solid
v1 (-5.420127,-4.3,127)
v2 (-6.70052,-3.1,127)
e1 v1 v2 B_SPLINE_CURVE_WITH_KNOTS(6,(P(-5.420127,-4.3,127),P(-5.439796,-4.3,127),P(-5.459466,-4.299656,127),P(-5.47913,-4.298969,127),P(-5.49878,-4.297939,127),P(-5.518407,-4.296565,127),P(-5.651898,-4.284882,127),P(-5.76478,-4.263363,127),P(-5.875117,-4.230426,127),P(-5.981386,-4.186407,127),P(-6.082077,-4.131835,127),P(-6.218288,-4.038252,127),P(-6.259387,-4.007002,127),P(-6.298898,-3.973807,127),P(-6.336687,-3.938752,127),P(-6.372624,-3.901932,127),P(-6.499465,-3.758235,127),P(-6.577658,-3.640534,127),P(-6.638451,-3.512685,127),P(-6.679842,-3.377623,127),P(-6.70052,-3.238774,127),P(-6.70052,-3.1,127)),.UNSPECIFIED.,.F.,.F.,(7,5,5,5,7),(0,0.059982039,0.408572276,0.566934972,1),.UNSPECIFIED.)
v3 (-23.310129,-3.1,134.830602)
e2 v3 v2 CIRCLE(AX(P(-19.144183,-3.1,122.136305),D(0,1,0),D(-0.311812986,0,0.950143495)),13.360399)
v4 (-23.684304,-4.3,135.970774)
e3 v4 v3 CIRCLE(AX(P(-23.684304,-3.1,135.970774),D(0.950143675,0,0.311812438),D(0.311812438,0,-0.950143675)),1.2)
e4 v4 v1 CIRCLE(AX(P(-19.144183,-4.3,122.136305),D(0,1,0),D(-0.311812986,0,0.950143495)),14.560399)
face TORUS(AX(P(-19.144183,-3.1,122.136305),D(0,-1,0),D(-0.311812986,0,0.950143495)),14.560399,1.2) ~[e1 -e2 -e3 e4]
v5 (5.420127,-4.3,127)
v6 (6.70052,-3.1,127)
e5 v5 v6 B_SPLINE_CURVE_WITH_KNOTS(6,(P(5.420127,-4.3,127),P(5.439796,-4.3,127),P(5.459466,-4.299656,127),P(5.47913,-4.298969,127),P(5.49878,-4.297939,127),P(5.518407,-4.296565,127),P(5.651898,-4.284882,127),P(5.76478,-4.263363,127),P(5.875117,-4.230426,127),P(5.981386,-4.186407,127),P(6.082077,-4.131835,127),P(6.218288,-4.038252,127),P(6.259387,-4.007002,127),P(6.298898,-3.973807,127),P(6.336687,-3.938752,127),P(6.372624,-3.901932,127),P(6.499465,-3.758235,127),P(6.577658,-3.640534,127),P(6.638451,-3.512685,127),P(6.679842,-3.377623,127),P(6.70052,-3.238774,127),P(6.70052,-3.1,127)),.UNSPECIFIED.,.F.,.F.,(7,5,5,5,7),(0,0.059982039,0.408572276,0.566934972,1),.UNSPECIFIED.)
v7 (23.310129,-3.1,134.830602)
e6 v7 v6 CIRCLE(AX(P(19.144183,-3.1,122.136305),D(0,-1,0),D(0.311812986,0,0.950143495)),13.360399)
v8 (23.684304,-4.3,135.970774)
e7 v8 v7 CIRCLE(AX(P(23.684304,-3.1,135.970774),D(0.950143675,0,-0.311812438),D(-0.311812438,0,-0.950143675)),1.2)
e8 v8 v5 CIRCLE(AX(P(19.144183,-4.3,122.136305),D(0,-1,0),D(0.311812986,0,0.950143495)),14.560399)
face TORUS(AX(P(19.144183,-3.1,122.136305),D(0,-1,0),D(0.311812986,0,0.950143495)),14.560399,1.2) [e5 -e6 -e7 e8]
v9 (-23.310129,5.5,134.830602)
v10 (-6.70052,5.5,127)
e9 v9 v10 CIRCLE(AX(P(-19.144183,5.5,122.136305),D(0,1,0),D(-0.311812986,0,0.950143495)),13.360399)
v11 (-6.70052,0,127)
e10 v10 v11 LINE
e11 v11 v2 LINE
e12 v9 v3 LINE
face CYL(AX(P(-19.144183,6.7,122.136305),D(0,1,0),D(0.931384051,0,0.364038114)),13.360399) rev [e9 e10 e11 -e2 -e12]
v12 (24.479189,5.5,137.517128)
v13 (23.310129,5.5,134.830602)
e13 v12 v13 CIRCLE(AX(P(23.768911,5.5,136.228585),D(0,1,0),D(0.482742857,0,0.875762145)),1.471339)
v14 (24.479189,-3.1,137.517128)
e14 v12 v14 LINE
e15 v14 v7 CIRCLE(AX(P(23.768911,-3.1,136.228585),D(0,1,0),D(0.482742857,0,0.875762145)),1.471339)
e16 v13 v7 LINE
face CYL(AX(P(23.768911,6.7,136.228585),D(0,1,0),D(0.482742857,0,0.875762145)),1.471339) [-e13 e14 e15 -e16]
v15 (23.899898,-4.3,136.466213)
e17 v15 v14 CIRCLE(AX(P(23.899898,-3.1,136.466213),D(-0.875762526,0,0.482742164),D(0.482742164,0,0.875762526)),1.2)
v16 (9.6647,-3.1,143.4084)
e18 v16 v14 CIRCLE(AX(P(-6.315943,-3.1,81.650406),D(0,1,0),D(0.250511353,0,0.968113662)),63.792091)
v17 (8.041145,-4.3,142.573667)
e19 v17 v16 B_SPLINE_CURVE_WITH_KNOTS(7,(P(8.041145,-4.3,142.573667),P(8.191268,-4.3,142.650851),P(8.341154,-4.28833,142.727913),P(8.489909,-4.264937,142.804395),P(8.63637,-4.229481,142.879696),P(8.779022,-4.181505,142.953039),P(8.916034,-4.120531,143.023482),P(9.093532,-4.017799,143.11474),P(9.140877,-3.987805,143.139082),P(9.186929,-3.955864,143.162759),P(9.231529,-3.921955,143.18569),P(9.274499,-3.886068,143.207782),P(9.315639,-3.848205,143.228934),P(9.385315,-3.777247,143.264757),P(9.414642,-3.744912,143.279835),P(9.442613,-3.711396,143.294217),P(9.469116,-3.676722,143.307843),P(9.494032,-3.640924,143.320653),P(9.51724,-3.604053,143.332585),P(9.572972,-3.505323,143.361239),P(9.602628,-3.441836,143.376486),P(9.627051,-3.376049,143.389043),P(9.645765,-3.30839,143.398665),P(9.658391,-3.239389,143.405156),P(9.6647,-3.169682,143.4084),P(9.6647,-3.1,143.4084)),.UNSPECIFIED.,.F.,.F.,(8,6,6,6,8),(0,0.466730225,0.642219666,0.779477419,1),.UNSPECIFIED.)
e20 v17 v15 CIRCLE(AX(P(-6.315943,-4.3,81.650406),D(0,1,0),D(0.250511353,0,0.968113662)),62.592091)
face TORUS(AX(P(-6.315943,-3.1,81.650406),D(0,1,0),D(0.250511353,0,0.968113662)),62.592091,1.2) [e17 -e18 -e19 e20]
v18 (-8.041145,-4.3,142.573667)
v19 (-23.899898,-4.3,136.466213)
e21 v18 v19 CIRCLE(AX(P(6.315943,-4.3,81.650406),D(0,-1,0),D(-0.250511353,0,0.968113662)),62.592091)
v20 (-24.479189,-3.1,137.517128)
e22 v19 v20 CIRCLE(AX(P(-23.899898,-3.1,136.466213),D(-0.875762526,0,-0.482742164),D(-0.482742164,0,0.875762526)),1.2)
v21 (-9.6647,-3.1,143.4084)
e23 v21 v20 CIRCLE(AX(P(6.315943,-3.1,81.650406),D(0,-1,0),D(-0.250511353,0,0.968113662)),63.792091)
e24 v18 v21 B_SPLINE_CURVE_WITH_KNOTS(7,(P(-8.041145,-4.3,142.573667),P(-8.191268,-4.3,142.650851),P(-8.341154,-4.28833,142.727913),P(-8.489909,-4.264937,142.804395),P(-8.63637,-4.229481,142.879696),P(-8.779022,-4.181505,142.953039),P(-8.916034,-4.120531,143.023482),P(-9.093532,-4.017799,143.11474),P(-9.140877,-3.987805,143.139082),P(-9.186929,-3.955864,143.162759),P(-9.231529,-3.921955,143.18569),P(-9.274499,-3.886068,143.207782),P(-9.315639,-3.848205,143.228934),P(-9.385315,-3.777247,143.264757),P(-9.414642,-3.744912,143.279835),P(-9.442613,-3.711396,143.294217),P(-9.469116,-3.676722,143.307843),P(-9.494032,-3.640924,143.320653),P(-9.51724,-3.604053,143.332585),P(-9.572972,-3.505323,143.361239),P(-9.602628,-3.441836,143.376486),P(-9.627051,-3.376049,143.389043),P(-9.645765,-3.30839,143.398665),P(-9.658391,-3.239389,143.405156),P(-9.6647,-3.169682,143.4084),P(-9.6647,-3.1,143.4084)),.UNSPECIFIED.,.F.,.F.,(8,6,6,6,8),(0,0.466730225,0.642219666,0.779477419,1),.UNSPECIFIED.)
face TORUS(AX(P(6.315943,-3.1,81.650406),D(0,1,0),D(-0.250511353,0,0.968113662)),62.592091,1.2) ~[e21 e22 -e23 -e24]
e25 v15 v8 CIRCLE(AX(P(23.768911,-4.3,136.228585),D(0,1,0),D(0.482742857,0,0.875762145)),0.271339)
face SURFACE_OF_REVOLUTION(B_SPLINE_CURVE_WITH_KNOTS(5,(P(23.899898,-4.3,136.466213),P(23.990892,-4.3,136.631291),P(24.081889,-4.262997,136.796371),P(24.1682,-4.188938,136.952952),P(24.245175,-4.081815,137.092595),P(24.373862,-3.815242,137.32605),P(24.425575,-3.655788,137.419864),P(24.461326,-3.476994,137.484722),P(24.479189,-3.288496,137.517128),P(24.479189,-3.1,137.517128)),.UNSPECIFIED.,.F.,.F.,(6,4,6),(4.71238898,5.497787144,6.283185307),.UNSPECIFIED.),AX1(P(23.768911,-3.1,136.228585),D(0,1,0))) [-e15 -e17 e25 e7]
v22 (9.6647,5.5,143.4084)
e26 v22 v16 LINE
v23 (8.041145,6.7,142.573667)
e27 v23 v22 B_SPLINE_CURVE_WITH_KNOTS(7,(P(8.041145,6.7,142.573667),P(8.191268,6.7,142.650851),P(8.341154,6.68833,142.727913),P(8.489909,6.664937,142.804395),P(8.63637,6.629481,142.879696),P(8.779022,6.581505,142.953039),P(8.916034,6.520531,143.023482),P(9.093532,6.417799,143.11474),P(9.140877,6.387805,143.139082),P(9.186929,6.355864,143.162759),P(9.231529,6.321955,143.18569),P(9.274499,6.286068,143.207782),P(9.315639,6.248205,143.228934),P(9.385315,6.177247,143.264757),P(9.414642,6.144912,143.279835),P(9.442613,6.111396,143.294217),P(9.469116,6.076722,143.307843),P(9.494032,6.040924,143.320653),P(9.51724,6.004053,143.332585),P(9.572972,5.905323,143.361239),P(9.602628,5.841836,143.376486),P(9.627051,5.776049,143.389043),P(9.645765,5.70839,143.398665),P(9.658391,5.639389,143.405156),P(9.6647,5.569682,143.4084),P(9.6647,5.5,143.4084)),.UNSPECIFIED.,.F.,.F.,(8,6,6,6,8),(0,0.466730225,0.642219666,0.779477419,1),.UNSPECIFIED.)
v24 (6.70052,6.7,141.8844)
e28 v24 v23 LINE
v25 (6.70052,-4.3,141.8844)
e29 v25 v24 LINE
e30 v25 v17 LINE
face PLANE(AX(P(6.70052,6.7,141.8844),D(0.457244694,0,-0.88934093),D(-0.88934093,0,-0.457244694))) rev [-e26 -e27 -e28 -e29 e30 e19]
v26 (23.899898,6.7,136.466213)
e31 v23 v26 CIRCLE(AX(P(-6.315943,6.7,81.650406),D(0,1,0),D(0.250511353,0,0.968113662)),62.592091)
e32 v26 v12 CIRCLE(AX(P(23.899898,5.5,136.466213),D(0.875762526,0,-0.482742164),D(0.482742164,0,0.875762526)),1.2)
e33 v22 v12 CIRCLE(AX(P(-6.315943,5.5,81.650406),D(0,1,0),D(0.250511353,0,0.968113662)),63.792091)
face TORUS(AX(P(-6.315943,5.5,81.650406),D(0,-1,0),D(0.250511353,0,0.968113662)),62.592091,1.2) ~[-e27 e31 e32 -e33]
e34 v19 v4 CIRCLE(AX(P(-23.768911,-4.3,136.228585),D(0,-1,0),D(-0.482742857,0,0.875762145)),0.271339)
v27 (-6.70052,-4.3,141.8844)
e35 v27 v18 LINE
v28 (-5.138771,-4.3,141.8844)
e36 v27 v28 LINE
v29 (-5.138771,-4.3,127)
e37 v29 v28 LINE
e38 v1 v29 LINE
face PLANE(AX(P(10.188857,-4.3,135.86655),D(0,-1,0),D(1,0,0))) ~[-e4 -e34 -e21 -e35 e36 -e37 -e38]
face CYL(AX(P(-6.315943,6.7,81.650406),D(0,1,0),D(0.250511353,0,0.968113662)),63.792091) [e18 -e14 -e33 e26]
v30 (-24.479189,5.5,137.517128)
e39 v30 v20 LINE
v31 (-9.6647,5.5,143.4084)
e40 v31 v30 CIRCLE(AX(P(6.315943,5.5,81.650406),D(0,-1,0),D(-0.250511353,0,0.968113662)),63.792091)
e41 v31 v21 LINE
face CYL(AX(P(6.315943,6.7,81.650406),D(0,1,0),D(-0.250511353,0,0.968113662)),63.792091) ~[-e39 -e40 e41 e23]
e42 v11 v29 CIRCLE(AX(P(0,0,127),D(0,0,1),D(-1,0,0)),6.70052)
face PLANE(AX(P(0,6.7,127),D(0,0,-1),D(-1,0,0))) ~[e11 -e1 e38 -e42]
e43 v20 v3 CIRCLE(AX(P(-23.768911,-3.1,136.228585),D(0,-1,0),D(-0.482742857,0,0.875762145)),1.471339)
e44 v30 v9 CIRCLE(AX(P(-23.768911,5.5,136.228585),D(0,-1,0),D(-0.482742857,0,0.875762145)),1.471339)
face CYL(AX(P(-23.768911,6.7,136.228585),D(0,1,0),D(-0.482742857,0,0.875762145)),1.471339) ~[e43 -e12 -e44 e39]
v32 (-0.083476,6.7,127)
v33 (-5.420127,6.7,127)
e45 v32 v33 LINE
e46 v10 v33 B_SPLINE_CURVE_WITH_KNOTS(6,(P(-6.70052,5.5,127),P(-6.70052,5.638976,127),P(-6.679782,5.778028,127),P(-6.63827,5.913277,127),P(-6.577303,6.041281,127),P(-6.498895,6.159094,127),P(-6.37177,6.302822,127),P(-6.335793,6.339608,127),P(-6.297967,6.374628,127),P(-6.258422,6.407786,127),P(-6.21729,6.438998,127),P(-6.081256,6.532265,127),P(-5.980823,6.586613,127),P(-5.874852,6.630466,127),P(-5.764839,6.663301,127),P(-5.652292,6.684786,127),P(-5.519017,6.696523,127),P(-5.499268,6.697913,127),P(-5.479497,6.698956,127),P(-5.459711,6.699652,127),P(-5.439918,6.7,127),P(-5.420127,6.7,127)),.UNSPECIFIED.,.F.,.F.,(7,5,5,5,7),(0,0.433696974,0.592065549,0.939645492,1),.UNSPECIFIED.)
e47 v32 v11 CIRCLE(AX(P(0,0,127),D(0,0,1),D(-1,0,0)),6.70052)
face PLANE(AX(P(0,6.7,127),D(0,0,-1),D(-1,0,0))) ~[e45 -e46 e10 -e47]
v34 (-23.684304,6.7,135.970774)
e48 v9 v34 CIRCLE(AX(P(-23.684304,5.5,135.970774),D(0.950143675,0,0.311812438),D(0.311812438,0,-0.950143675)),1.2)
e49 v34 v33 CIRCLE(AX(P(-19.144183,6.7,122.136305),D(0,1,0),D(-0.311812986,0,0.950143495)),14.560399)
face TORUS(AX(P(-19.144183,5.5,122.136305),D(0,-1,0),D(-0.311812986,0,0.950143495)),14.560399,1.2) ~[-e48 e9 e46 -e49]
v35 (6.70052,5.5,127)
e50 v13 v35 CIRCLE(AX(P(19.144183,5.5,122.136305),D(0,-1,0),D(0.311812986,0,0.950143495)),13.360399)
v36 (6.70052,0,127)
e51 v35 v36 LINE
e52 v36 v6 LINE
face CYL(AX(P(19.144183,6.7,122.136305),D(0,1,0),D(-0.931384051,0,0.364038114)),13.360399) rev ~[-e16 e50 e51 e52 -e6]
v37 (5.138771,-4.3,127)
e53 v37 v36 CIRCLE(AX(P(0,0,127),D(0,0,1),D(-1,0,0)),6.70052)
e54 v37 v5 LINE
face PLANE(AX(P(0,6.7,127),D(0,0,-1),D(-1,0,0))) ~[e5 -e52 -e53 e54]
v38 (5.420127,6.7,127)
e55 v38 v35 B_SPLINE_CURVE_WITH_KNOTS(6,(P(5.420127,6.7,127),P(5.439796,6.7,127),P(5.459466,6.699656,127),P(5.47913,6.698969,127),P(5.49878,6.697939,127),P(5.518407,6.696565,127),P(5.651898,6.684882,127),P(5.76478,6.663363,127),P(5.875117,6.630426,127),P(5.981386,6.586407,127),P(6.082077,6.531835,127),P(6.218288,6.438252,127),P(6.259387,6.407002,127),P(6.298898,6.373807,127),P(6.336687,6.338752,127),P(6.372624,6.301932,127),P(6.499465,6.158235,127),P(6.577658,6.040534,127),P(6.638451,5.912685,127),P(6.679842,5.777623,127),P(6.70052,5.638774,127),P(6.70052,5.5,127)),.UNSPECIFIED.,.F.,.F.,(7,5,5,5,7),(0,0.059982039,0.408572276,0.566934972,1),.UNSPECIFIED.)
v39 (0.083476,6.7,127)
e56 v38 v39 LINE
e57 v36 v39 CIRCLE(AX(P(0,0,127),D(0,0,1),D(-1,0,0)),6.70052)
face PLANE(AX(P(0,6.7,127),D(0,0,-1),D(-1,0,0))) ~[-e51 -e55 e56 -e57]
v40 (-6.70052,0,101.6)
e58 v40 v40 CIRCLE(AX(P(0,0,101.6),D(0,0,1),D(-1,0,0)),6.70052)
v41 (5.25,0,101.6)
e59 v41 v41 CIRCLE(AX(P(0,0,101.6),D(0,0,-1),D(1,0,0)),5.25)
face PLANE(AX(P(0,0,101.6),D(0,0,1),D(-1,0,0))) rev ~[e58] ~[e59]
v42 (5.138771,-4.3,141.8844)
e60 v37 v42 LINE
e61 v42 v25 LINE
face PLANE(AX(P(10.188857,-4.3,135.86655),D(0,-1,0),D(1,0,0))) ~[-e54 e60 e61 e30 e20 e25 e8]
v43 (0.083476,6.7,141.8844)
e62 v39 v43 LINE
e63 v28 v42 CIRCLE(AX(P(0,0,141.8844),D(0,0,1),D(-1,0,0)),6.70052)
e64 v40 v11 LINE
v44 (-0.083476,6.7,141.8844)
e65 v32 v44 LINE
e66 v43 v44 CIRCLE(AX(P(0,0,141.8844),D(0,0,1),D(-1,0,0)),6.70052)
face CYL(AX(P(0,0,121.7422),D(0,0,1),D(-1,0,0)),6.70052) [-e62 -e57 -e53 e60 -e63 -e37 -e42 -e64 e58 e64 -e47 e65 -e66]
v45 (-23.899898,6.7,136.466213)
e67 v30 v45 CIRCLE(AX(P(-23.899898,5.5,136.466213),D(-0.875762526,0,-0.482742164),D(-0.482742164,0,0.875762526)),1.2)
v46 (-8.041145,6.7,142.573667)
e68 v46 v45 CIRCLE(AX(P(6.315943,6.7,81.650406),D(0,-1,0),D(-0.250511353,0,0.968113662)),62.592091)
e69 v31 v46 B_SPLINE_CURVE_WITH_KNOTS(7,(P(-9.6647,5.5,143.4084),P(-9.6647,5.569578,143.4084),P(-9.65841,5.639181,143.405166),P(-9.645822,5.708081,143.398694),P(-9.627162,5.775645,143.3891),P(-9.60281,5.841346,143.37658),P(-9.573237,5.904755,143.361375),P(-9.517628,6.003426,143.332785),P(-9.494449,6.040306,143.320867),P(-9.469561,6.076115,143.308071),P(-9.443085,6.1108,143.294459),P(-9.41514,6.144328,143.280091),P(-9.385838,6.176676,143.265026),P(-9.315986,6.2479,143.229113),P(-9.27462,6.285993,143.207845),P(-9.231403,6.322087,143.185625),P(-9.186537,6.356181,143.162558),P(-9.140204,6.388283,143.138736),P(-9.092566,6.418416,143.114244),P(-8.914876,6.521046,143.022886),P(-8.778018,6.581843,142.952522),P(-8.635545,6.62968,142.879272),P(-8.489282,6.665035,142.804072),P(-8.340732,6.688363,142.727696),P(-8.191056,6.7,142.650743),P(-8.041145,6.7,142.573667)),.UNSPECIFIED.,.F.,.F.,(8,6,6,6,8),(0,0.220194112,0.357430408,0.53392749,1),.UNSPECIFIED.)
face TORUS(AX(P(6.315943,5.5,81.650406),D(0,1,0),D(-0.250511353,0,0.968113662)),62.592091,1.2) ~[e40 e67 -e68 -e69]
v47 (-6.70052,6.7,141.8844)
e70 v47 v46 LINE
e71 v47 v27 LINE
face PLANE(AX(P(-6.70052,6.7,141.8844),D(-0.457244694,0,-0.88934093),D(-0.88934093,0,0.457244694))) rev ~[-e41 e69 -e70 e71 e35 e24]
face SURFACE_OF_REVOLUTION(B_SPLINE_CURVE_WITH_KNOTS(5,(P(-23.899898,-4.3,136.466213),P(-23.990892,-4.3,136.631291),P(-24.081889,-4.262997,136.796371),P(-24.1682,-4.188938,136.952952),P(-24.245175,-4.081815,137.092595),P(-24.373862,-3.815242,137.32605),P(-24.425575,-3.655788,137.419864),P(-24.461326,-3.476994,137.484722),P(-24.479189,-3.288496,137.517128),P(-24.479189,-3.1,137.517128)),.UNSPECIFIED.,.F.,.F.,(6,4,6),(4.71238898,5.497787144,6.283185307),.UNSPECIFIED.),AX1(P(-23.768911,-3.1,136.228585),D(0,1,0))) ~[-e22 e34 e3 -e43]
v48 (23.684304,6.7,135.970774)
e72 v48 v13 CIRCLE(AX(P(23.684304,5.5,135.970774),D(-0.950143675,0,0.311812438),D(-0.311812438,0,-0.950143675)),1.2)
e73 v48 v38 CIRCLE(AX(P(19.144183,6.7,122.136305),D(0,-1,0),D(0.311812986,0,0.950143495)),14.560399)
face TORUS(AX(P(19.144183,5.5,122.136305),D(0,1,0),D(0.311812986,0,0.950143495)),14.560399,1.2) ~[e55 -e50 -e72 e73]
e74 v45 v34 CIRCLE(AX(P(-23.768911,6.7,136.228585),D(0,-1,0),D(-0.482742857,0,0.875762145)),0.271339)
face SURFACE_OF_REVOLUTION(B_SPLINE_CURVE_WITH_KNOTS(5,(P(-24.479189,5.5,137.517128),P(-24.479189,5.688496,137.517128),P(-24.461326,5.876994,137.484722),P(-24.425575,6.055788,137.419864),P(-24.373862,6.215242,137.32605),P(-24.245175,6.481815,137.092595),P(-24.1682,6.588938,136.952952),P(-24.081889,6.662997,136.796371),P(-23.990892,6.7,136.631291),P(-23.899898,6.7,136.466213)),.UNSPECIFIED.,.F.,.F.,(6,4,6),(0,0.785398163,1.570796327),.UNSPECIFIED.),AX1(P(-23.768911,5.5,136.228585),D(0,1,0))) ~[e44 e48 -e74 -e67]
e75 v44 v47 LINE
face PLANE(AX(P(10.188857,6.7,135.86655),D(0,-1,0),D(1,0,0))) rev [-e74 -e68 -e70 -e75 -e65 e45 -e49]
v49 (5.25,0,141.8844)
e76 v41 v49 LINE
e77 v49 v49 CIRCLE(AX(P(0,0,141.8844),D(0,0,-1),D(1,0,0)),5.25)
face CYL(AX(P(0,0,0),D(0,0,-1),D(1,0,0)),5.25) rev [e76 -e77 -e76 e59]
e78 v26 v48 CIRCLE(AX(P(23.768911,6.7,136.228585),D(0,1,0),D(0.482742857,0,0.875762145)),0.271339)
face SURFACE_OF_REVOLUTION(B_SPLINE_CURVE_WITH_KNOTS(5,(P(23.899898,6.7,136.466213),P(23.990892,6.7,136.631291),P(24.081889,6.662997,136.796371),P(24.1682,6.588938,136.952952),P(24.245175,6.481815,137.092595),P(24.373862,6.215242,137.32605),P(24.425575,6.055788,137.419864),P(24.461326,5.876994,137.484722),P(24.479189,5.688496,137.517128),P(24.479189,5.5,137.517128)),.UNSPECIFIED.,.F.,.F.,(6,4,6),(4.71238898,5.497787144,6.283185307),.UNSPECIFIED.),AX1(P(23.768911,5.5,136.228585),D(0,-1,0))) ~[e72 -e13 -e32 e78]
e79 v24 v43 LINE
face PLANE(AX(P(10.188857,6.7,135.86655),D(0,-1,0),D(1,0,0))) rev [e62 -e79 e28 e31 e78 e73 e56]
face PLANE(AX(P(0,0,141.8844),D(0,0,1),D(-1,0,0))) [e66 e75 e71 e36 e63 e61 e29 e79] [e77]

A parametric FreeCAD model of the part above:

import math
import FreeCAD as App
import Part
import Sketcher
Q = App.Units.Quantity


def edges_at(feature, points):
    """Names of the edges that pass closest to the given points."""
    edges = feature.Shape.Edges
    near = lambda p: min(range(len(edges)), key=lambda i: edges[i].distToShape(Part.Vertex(*p))[0])
    return sorted({f"Edge{near(p) + 1}" for p in points})

doc = App.newDocument("Part")
body = doc.addObject("PartDesign::Body", "Body")

# Sketch on XZ plane
sketch1 = doc.addObject("Sketcher::SketchObject", "Sketch")
body.addObject(sketch1)
sketch1.AttachmentSupport = (doc.XZ_Plane, [""])
sketch1.MapMode = "FlatFace"
sketch1.AttachmentOffset = App.Placement(App.Vector(0, 0, -6.7), App.Rotation())
sketch1.addGeometry(Part.LineSegment(App.Vector(-6.70052, 141.8844, 0), App.Vector(-9.6647, 143.4084, 0)), False)
sketch1.addGeometry(Part.ArcOfCircle(Part.Circle(App.Vector(6.315943, 81.650406, 0), App.Vector(0, 0, 1), 63.792091), math.radians(104.507773), math.radians(118.864651)), False)
sketch1.addGeometry(Part.ArcOfCircle(Part.Circle(App.Vector(-23.768911, 136.228585, 0), App.Vector(0, 0, 1), 1.471339), math.radians(118.864696), math.radians(288.16849)), False)
sketch1.addGeometry(Part.ArcOfCircle(Part.Circle(App.Vector(-19.144183, 122.136305, 0), App.Vector(0, 0, 1), 13.360399), math.radians(21.348399), math.radians(108.168523)), False)
sketch1.addGeometry(Part.LineSegment(App.Vector(-6.70052, 127, 0), App.Vector(0, 127, 0)), False)
sketch1.addGeometry(Part.LineSegment(App.Vector(0, 127, 0), App.Vector(0, 141.8844, 0)), False)
sketch1.addGeometry(Part.LineSegment(App.Vector(0, 141.8844, 0), App.Vector(-6.70052, 141.8844, 0)), False)
sketch1.addConstraint(Sketcher.Constraint("Coincident", 0, 2, 1, 1))
sketch1.addConstraint(Sketcher.Constraint("Tangent", 1, 2, 2, 1))
sketch1.addConstraint(Sketcher.Constraint("Tangent", 2, 2, 3, 2))
sketch1.addConstraint(Sketcher.Constraint("Coincident", 3, 1, 4, 1))
sketch1.addConstraint(Sketcher.Constraint("Coincident", 4, 2, 5, 1))
sketch1.addConstraint(Sketcher.Constraint("Coincident", 5, 2, 6, 1))
sketch1.addConstraint(Sketcher.Constraint("Coincident", 6, 2, 0, 1))
sketch1.addConstraint(Sketcher.Constraint("Horizontal", 4))
sketch1.addConstraint(Sketcher.Constraint("Vertical", 5))
sketch1.addConstraint(Sketcher.Constraint("Horizontal", 6))
sketch1.addConstraint(Sketcher.Constraint("PointOnObject", 4, 2, -2))
sketch1.addConstraint(Sketcher.Constraint("Vertical", 3, 1, 6, 2))
sketch1.addConstraint(Sketcher.Constraint("DistanceY", -1, 1, 3, 1, Q("127 mm")))
sketch1.addConstraint(Sketcher.Constraint("Radius", 3, Q("13.360399 mm")))
sketch1.addConstraint(Sketcher.Constraint("Radius", 1, Q("63.792091 mm")))
sketch1.addConstraint(Sketcher.Constraint("Radius", 2, Q("1.471339 mm")))
sketch1.addConstraint(Sketcher.Constraint("DistanceY", 5, 1, 5, 2, Q("14.8844 mm")))
sketch1.addConstraint(Sketcher.Constraint("DistanceY", 5, 2, 0, 2, Q("1.524 mm")))
sketch1.addConstraint(Sketcher.Constraint("DistanceX", 4, 1, 4, 2, Q("6.70052 mm")))
sketch1.addConstraint(Sketcher.Constraint("DistanceX", 0, 2, -1, 1, Q("9.6647 mm")))
sketch1.addConstraint(Sketcher.Constraint("DistanceY", -1, 1, 2, 2, Q("134.830602 mm")))
sketch1.addConstraint(Sketcher.Constraint("DistanceY", 1, 3, 3, 3, Q("40.4859 mm")))
pad1 = doc.addObject("PartDesign::Pad", "Pad")
body.addObject(pad1)
pad1.Profile = sketch1
pad1.Length = 11
doc.recompute()

mirrored = doc.addObject("PartDesign::Mirrored", "Mirrored")
body.addObject(mirrored)
mirrored.Originals = [pad1]
mirrored.MirrorPlane = (doc.YZ_Plane, [""])
body.Tip = mirrored
doc.recompute()

fillet = doc.addObject("PartDesign::Fillet", "Fillet")
body.addObject(fillet)
fillet.Base = (mirrored, edges_at(mirrored, [
    (17.257, 6.7, 140.927),
    (17.257, -4.3, 140.927),
    (-17.257, -4.3, 140.927),
    (-17.257, 6.7, 140.927),
]))
fillet.Radius = 1.2

# Sketch on XZ plane
sketch2 = doc.addObject("Sketcher::SketchObject", "Sketch001")
body.addObject(sketch2)
sketch2.AttachmentSupport = (doc.XZ_Plane, [""])
sketch2.MapMode = "FlatFace"
sketch2.addGeometry(Part.LineSegment(App.Vector(-6.70052, 141.8844, 0), App.Vector(-6.70052, 101.6, 0)), False)
sketch2.addGeometry(Part.LineSegment(App.Vector(-6.70052, 101.6, 0), App.Vector(0, 101.6, 0)), False)
sketch2.addGeometry(Part.LineSegment(App.Vector(0, 101.6, 0), App.Vector(0, 141.8844, 0)), False)
sketch2.addGeometry(Part.LineSegment(App.Vector(0, 141.8844, 0), App.Vector(-6.70052, 141.8844, 0)), False)
sketch2.addConstraint(Sketcher.Constraint("Coincident", 0, 2, 1, 1))
sketch2.addConstraint(Sketcher.Constraint("Coincident", 1, 2, 2, 1))
sketch2.addConstraint(Sketcher.Constraint("Coincident", 2, 2, 3, 1))
sketch2.addConstraint(Sketcher.Constraint("Coincident", 3, 2, 0, 1))
sketch2.addConstraint(Sketcher.Constraint("Vertical", 0))
sketch2.addConstraint(Sketcher.Constraint("Horizontal", 1))
sketch2.addConstraint(Sketcher.Constraint("Vertical", 2))
sketch2.addConstraint(Sketcher.Constraint("Horizontal", 3))
sketch2.addConstraint(Sketcher.Constraint("PointOnObject", 1, 2, -2))
sketch2.addConstraint(Sketcher.Constraint("DistanceY", -1, 1, 0, 2, Q("101.6 mm")))
sketch2.addConstraint(Sketcher.Constraint("DistanceY", 0, 2, 0, 1, Q("40.2844 mm")))
sketch2.addConstraint(Sketcher.Constraint("DistanceX", 1, 1, 1, 2, Q("6.70052 mm")))
revolution = doc.addObject("PartDesign::Revolution", "Revolution")
body.addObject(revolution)
revolution.Profile = sketch2
revolution.ReferenceAxis = (sketch2, ["V_Axis"])
revolution.Angle = 360

# Sketch on XY plane
sketch3 = doc.addObject("Sketcher::SketchObject", "Sketch002")
body.addObject(sketch3)
sketch3.AttachmentSupport = (doc.XY_Plane, [""])
sketch3.MapMode = "FlatFace"
sketch3.addGeometry(Part.Circle(App.Vector(0, 0, 0), App.Vector(0, 0, 1), 5.25), False)
sketch3.addConstraint(Sketcher.Constraint("Coincident", 0, 3, -1, 1))
sketch3.addConstraint(Sketcher.Constraint("Diameter", 0, Q("10.5 mm")))
pocket1 = doc.addObject("PartDesign::Pocket", "Pocket")
body.addObject(pocket1)
pocket1.Profile = sketch3
pocket1.Type = "ThroughAll"
pocket1.Midplane = True

doc.recompute()
